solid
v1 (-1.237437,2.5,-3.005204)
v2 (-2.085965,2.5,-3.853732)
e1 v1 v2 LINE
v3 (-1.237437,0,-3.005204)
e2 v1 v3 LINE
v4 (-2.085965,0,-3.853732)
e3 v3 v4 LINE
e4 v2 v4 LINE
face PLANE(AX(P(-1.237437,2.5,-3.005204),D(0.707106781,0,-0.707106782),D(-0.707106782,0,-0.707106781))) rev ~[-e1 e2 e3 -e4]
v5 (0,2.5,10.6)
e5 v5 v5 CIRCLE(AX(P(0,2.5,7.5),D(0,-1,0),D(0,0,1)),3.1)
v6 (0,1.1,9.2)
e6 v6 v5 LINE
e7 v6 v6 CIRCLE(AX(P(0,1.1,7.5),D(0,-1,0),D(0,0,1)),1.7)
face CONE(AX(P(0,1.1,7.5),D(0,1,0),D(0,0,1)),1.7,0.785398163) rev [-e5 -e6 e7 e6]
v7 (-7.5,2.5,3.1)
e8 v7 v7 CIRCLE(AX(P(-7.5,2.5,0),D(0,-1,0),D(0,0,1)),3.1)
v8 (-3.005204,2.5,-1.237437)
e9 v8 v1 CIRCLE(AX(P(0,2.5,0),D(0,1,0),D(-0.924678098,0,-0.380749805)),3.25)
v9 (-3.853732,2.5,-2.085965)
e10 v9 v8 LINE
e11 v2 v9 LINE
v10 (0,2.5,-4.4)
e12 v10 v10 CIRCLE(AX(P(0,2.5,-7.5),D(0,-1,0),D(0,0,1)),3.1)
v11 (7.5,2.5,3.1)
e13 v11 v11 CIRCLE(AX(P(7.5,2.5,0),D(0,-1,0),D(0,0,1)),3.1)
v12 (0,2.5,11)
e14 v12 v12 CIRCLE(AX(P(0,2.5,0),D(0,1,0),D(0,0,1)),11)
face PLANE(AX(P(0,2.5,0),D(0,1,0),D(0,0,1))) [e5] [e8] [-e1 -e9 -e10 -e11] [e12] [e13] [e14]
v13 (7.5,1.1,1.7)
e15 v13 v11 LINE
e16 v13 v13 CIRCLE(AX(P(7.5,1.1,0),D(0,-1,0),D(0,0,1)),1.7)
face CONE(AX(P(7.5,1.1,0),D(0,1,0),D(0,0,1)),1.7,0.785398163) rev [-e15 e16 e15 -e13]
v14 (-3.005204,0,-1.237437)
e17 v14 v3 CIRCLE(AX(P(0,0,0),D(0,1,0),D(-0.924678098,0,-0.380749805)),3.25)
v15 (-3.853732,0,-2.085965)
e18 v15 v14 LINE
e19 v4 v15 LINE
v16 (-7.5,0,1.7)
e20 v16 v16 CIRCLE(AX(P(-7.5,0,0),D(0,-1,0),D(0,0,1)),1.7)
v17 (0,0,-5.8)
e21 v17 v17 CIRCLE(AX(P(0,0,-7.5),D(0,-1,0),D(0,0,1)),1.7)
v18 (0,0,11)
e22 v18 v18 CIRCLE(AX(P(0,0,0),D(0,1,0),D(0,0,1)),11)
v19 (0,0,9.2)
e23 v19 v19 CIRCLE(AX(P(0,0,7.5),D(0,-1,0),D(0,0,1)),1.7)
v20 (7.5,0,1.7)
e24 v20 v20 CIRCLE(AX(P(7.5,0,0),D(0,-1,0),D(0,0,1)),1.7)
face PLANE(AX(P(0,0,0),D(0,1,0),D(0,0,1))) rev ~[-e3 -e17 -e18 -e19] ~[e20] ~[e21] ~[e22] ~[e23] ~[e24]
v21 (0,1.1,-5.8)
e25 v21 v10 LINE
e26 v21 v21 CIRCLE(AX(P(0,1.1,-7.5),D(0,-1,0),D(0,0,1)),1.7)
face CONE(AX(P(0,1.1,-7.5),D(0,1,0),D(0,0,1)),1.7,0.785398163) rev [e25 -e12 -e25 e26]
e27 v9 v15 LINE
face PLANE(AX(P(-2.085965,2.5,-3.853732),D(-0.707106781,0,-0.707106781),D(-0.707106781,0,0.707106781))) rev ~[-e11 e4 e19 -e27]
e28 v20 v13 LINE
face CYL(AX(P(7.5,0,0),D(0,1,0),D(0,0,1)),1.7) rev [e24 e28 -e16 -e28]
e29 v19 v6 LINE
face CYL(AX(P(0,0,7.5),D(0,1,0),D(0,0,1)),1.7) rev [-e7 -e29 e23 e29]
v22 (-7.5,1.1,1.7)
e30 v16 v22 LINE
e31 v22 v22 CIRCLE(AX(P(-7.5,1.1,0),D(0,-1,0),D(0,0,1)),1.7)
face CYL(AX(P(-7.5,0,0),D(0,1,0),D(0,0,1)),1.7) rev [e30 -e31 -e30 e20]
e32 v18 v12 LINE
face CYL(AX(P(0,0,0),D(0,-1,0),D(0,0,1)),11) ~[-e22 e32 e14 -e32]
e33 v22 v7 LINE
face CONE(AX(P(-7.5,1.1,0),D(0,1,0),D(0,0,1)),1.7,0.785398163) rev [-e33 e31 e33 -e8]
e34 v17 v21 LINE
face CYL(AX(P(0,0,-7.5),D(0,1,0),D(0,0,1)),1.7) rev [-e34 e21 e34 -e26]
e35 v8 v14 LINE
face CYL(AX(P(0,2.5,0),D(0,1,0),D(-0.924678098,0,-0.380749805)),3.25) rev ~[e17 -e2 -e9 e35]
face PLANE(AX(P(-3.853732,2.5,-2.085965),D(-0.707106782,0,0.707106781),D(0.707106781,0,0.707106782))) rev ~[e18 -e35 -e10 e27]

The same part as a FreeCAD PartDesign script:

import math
import FreeCAD as App
import Part
import Sketcher
from FreeCAD import Vector
Q = App.Units.Quantity

doc = App.newDocument("Part")
params = doc.addObject("Spreadsheet::Sheet", "Params")
for row, (alias, value) in enumerate([
    ("sketch1_diameter", "22 mm"),
    ("pad1_length", "2.5 mm"),
    ("sketch2_width", "2.5 mm"),
    ("sketch2_width2", "1.1 mm"),
    ("sketch2_height", "3.1 mm"),
    ("groove_angle", "360 deg"),
    ("linearpattern_pitch", "10.606602 mm"),
    ("linearpattern2_pitch", "15 mm"),
    ("linearpattern3_pitch", "10.606602 mm"),
    ("sketch3_radius", "3.25 mm"),
    ("sketch3_length", "2.5 mm"),
    ("sketch3_length2", "1.2 mm"),
], start=1):
    params.set(f"A{row}", alias)
    params.set(f"B{row}", "=" + value)
    params.setAlias(f"B{row}", alias)

body = doc.addObject("PartDesign::Body", "Body")

# Sketch on XZ plane
sketch1 = doc.addObject("Sketcher::SketchObject", "Sketch")
body.addObject(sketch1)
sketch1.AttachmentSupport = (doc.XZ_Plane, [""])
sketch1.MapMode = "FlatFace"
sketch1.addGeometry(Part.Circle(Vector(0, 0, 0), Vector(0, 0, 1), 11), False)
sketch1.addConstraint(Sketcher.Constraint("Coincident", 0, 3, -1, 1))
sketch1.addConstraint(Sketcher.Constraint("Diameter", 0, 22.0))
sketch1.setExpression("Constraints[1]", "Params.sketch1_diameter")
pad1 = doc.addObject("PartDesign::Pad", "Pad")
body.addObject(pad1)
pad1.Profile = sketch1
pad1.setExpression("Length", "Params.pad1_length")
pad1.Reversed = True

# Sketch on YZ plane
sketch2 = doc.addObject("Sketcher::SketchObject", "Sketch001")
body.addObject(sketch2)
sketch2.AttachmentSupport = (doc.YZ_Plane, [""])
sketch2.MapMode = "FlatFace"
sketch2.AttachmentOffset = App.Placement(Vector(0, 0, -7.5), App.Rotation())
sketch2.addGeometry(Part.LineSegment(Vector(0, 0, 0), Vector(2.5, 0, 0)), False)
sketch2.addGeometry(Part.LineSegment(Vector(2.5, 0, 0), Vector(2.5, 3.1, 0)), False)
sketch2.addGeometry(Part.LineSegment(Vector(2.5, 3.1, 0), Vector(1.1, 1.7, 0)), False)
sketch2.addGeometry(Part.LineSegment(Vector(1.1, 1.7, 0), Vector(0, 1.7, 0)), False)
sketch2.addGeometry(Part.LineSegment(Vector(0, 1.7, 0), Vector(0, 0, 0)), False)
sketch2.addConstraint(Sketcher.Constraint("Coincident", 0, 2, 1, 1))
sketch2.addConstraint(Sketcher.Constraint("Coincident", 1, 2, 2, 1))
sketch2.addConstraint(Sketcher.Constraint("Coincident", 2, 2, 3, 1))
sketch2.addConstraint(Sketcher.Constraint("Coincident", 3, 2, 4, 1))
sketch2.addConstraint(Sketcher.Constraint("Coincident", 4, 2, 0, 1))
sketch2.addConstraint(Sketcher.Constraint("Horizontal", 0))
sketch2.addConstraint(Sketcher.Constraint("Vertical", 1))
sketch2.addConstraint(Sketcher.Constraint("Horizontal", 3))
sketch2.addConstraint(Sketcher.Constraint("Vertical", 4))
sketch2.addConstraint(Sketcher.Constraint("Coincident", 4, 2, -1, 1))
sketch2.addConstraint(Sketcher.Constraint("Angle", 2, Q("-135 deg")))
sketch2.addConstraint(Sketcher.Constraint("DistanceX", 0, 1, 0, 2, 2.5))
sketch2.addConstraint(Sketcher.Constraint("DistanceX", 3, 2, 3, 1, 1.1))
sketch2.addConstraint(Sketcher.Constraint("DistanceY", 1, 1, 1, 2, 3.1))
sketch2.setExpression("Constraints[11]", "Params.sketch2_width")
sketch2.setExpression("Constraints[12]", "Params.sketch2_width2")
sketch2.setExpression("Constraints[13]", "Params.sketch2_height")
groove = doc.addObject("PartDesign::Groove", "Groove")
body.addObject(groove)
groove.Profile = sketch2
groove.ReferenceAxis = (sketch2, ["H_Axis"])
groove.setExpression("Angle", "Params.groove_angle")
doc.recompute()

datumline = doc.addObject("PartDesign::Line", "DatumLine")
body.addObject(datumline)
datumline.Placement = App.Placement(Vector(0, 0, 0), App.Rotation(Vector(0, 0, 1), Vector(0.707106781, 0, -0.707106781)))
linearpattern = doc.addObject("PartDesign::LinearPattern", "LinearPattern")
body.addObject(linearpattern)
linearpattern.Originals = [groove]
linearpattern.Direction = (datumline, [""])
linearpattern.Mode = "offset"
linearpattern.setExpression("Offset", "Params.linearpattern_pitch")
linearpattern.Occurrences = 2
body.Tip = linearpattern
doc.recompute()

linearpattern2 = doc.addObject("PartDesign::LinearPattern", "LinearPattern001")
body.addObject(linearpattern2)
linearpattern2.Originals = [groove]
linearpattern2.Direction = (doc.X_Axis, [""])
linearpattern2.Mode = "offset"
linearpattern2.setExpression("Offset", "Params.linearpattern2_pitch")
linearpattern2.Occurrences = 2
body.Tip = linearpattern2
doc.recompute()

datumline2 = doc.addObject("PartDesign::Line", "DatumLine001")
body.addObject(datumline2)
datumline2.Placement = App.Placement(Vector(0, 0, 0), App.Rotation(Vector(0, 0, 1), Vector(0.707106781, 0, 0.707106781)))
linearpattern3 = doc.addObject("PartDesign::LinearPattern", "LinearPattern002")
body.addObject(linearpattern3)
linearpattern3.Originals = [groove]
linearpattern3.Direction = (datumline2, [""])
linearpattern3.Mode = "offset"
linearpattern3.setExpression("Offset", "Params.linearpattern3_pitch")
linearpattern3.Occurrences = 2
body.Tip = linearpattern3

# Sketch on XZ plane
sketch3 = doc.addObject("Sketcher::SketchObject", "Sketch002")
body.addObject(sketch3)
sketch3.AttachmentSupport = (doc.XZ_Plane, [""])
sketch3.MapMode = "FlatFace"
sketch3.AttachmentOffset = App.Placement(Vector(0, 0, -2.5), App.Rotation())
sketch3.addGeometry(Part.LineSegment(Vector(-2.1, -3.9, 0), Vector(-3.9, -2.1, 0)), False)
sketch3.addGeometry(Part.LineSegment(Vector(-3.9, -2.1, 0), Vector(-3, -1.2, 0)), False)
sketch3.addGeometry(Part.ArcOfCircle(Part.Circle(Vector(0, 0, 0), Vector(0, 0, 1), 3.2), math.radians(-112), math.radians(202)), False)
sketch3.addGeometry(Part.LineSegment(Vector(-1.2, -3, 0), Vector(-2.1, -3.9, 0)), False)
sketch3.addConstraint(Sketcher.Constraint("Coincident", 0, 2, 1, 1))
sketch3.addConstraint(Sketcher.Constraint("Coincident", 1, 2, 2, 2))
sketch3.addConstraint(Sketcher.Constraint("Coincident", 2, 1, 3, 1))
sketch3.addConstraint(Sketcher.Constraint("Coincident", 3, 2, 0, 1))
sketch3.addConstraint(Sketcher.Constraint("Coincident", 2, 3, -1, 1))
sketch3.addConstraint(Sketcher.Constraint("Perpendicular", 0, 1))
sketch3.addConstraint(Sketcher.Constraint("Parallel", 1, 3))
sketch3.addConstraint(Sketcher.Constraint("Equal", 1, 3))
sketch3.addConstraint(Sketcher.Constraint("Angle", 0, Q("135 deg")))
sketch3.addConstraint(Sketcher.Constraint("Radius", 2, 3.25))
sketch3.addConstraint(Sketcher.Constraint("Distance", 0, 2.5))
sketch3.addConstraint(Sketcher.Constraint("Distance", 1, 1.2))
sketch3.setExpression("Constraints[9]", "Params.sketch3_radius")
sketch3.setExpression("Constraints[10]", "Params.sketch3_length")
sketch3.setExpression("Constraints[11]", "Params.sketch3_length2")
pocket1 = doc.addObject("PartDesign::Pocket", "Pocket")
body.addObject(pocket1)
pocket1.Profile = sketch3
pocket1.Type = "ThroughAll"
pocket1.Reversed = True

doc.recompute()
